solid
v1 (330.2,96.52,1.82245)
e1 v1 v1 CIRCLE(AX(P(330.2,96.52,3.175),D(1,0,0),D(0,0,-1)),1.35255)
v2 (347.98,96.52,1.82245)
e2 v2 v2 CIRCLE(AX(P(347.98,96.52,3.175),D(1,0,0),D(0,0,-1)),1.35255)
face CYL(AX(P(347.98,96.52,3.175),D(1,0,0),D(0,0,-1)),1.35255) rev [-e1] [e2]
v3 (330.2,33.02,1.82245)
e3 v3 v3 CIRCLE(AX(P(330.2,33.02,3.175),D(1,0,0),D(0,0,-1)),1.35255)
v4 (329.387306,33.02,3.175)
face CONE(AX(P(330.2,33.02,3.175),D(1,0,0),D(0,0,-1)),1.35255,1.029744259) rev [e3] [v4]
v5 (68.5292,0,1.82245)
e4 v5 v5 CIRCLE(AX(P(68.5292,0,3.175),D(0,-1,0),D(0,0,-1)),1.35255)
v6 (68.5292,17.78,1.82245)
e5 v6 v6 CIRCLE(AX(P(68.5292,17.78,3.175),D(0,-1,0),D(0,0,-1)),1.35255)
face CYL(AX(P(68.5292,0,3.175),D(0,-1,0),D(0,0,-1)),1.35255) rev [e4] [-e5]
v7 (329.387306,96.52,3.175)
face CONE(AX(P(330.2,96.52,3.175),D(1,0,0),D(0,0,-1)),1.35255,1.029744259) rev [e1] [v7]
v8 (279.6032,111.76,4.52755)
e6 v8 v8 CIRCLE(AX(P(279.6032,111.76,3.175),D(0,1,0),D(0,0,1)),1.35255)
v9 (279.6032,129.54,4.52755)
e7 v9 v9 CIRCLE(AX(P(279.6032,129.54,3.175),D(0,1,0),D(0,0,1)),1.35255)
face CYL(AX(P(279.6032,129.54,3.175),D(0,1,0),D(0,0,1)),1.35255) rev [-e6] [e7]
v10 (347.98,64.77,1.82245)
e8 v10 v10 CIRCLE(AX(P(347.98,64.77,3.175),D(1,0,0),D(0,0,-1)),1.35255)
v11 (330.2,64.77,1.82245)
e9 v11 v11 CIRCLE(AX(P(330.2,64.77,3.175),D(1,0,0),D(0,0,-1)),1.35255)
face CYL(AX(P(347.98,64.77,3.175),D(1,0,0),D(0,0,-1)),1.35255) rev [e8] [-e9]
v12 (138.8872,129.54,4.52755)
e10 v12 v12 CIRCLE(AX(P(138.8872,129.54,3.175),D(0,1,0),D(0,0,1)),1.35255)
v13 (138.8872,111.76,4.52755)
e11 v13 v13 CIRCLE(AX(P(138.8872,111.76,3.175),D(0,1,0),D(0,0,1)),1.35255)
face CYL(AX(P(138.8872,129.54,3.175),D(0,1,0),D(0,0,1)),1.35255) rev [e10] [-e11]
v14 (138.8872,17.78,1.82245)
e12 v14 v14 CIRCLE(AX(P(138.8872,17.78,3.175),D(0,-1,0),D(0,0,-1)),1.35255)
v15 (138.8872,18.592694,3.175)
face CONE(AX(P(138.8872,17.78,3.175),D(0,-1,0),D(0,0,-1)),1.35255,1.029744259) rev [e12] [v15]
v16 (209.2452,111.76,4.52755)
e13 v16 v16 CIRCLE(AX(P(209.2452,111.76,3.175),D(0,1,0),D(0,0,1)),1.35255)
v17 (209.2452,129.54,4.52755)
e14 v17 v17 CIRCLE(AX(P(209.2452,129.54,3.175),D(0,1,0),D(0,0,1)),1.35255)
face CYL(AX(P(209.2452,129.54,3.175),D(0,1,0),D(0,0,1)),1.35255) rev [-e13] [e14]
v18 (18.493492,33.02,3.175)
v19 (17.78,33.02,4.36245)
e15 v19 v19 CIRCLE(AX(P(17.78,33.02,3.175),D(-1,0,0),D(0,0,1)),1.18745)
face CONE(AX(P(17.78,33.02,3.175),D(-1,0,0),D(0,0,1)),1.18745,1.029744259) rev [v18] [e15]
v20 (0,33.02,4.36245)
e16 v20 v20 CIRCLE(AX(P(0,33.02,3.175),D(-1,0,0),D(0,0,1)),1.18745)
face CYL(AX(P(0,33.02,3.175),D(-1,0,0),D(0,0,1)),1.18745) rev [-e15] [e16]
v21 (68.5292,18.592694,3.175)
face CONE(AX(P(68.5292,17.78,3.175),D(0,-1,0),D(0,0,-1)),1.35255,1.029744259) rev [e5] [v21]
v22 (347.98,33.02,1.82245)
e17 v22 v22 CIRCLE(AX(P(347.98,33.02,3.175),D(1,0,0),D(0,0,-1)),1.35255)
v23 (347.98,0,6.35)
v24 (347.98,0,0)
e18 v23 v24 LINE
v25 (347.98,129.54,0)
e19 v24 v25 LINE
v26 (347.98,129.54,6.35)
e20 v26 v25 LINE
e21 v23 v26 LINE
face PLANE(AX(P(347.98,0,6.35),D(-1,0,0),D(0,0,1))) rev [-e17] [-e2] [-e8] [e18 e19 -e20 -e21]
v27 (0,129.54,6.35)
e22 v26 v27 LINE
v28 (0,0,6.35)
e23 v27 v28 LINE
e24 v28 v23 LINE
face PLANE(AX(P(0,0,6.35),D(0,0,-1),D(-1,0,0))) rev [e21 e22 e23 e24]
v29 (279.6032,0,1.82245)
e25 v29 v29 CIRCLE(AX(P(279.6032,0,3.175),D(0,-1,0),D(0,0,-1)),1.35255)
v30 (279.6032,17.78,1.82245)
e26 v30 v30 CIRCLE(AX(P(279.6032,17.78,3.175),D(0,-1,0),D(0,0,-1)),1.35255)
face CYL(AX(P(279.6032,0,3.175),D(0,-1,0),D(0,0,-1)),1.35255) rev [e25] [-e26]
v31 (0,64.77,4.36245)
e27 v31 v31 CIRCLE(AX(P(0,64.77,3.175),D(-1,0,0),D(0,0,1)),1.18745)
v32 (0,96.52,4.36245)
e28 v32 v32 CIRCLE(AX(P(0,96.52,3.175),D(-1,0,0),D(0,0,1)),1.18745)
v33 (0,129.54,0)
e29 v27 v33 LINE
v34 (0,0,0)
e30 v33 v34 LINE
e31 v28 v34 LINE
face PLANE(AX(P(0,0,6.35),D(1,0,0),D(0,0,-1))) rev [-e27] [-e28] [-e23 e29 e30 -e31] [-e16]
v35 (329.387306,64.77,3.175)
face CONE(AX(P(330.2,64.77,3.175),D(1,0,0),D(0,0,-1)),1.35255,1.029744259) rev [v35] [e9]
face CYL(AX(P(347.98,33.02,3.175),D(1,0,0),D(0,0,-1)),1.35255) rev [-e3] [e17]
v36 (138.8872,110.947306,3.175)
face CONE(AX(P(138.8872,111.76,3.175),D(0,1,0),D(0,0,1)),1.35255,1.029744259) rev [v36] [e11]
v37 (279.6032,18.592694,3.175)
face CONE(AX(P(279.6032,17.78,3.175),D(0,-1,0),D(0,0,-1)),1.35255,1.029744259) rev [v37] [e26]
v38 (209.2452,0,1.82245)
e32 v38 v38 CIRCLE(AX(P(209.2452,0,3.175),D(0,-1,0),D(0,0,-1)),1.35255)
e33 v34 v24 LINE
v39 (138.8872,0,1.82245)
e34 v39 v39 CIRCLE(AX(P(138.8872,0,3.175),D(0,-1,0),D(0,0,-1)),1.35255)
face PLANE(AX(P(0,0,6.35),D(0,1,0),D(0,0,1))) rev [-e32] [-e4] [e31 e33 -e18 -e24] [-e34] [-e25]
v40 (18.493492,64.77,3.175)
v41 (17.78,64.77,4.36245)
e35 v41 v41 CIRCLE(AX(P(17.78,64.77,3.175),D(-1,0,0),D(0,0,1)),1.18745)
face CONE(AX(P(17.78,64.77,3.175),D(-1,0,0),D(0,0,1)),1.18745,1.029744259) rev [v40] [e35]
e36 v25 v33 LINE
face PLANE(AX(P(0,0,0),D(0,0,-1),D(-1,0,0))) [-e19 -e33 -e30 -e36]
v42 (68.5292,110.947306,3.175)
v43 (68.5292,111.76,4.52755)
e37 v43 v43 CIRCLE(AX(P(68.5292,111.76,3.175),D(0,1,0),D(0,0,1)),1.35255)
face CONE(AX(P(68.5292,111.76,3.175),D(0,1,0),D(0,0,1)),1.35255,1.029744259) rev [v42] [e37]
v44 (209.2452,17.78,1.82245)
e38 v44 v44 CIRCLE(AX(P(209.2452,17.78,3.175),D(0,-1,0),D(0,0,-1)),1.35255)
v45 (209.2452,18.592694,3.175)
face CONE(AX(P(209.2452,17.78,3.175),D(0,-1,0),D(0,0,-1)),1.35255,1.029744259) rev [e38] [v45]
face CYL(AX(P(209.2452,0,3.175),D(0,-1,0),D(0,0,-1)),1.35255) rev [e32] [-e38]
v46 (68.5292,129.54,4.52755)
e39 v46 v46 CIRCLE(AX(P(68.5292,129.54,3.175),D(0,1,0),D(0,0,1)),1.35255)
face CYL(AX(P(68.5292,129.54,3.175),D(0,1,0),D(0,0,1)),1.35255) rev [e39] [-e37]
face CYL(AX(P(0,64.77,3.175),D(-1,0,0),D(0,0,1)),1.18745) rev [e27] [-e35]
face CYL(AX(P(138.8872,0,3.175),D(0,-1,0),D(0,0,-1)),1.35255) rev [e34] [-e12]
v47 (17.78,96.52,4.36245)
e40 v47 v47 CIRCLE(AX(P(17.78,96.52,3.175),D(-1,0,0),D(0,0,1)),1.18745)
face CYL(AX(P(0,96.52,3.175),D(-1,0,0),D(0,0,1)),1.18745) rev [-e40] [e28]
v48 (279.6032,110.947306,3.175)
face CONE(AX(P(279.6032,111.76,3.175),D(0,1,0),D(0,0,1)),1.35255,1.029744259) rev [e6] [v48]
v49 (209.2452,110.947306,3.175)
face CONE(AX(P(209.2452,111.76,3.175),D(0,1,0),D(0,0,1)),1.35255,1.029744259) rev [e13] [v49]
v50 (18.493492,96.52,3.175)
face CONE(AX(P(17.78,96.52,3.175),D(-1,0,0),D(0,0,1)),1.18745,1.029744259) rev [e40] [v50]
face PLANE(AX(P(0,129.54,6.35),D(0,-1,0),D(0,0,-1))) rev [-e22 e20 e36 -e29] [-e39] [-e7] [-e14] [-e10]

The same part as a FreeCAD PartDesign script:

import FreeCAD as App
import Part
import Sketcher
Q = App.Units.Quantity


def add_polygon(sketch, points):
    """Adds a closed chain of lines whose ends are joined by coincident constraints."""
    first, n = sketch.GeometryCount, len(points)
    for a, b in zip(points, points[1:] + points[:1]):
        sketch.addGeometry(Part.LineSegment(App.Vector(*a, 0), App.Vector(*b, 0)), False)
    for i in range(n):
        sketch.addConstraint(Sketcher.Constraint("Coincident", first + i, 2, first + (i + 1) % n, 1))

doc = App.newDocument("Part")
body = doc.addObject("PartDesign::Body", "Body")

# Sketch on XY plane
sketch1 = doc.addObject("Sketcher::SketchObject", "Sketch")
body.addObject(sketch1)
sketch1.AttachmentSupport = (doc.XY_Plane, [""])
sketch1.MapMode = "FlatFace"
add_polygon(sketch1, [(0, 130), (0, 0), (348, 0), (348, 130)])  # lines 0-3
sketch1.addConstraint([
    Sketcher.Constraint("Vertical", 0),
    Sketcher.Constraint("Horizontal", 1),
    Sketcher.Constraint("Vertical", 2),
    Sketcher.Constraint("Horizontal", 3),
    Sketcher.Constraint("Coincident", 0, 2, -1, 1),
    Sketcher.Constraint("DistanceX", 1, 1, 1, 2, Q("13.7 in")),
    Sketcher.Constraint("DistanceY", 0, 2, 0, 1, Q("5.1 in")),
])
pad1 = doc.addObject("PartDesign::Pad", "Pad")
body.addObject(pad1)
pad1.Profile = sketch1
pad1.Length = Q("0.25 in")

# Sketch on YZ plane
sketch2 = doc.addObject("Sketcher::SketchObject", "Sketch001")
body.addObject(sketch2)
sketch2.AttachmentSupport = (doc.YZ_Plane, [""])
sketch2.MapMode = "FlatFace"
sketch2.addGeometry([
    Part.Circle(App.Vector(95.2, -348.6, 0), App.Vector(0, 0, 1), 1.2),  # 0
    Part.Circle(App.Vector(69.8, -348.6, 0), App.Vector(0, 0, 1), 1.2),  # 1
    Part.Circle(App.Vector(44.5, -348.6, 0), App.Vector(0, 0, 1), 1.2),  # 2
    Part.Circle(App.Vector(96.5, 3.2, 0), App.Vector(0, 0, 1), 1.2),  # 3
    Part.Circle(App.Vector(64.8, 3.2, 0), App.Vector(0, 0, 1), 1.2),  # 4
    Part.Circle(App.Vector(33, 3.2, 0), App.Vector(0, 0, 1), 1.2),  # 5
], False)
sketch2.addConstraint([
    Sketcher.Constraint("Equal", 0, 1),
    Sketcher.Constraint("Equal", 1, 2),
    Sketcher.Constraint("Equal", 2, 3),
    Sketcher.Constraint("Equal", 3, 4),
    Sketcher.Constraint("Equal", 4, 5),
    Sketcher.Constraint("Horizontal", 0, 3, 1, 3),
    Sketcher.Constraint("Horizontal", 1, 3, 2, 3),
    Sketcher.Constraint("Horizontal", 3, 3, 4, 3),
    Sketcher.Constraint("Horizontal", 4, 3, 5, 3),
    Sketcher.Constraint("DistanceX", 1, 3, 0, 3, Q("1 in")),
    Sketcher.Constraint("DistanceX", 2, 3, 1, 3, Q("1 in")),
    Sketcher.Constraint("Diameter", 0, Q("0.0935 in")),
    Sketcher.Constraint("DistanceX", -1, 1, 3, 3, Q("3.8 in")),
    Sketcher.Constraint("DistanceX", -1, 1, 5, 3, Q("1.3 in")),
    Sketcher.Constraint("DistanceX", 4, 3, 1, 3, Q("0.2 in")),
    Sketcher.Constraint("DistanceX", -1, 1, 0, 3, Q("3.75 in")),
    Sketcher.Constraint("DistanceY", 0, 3, 3, 3, Q("13.85 in")),
    Sketcher.Constraint("DistanceY", 0, 3, -1, 1, Q("13.725 in")),
])
doc.recompute()
hole = doc.addObject("PartDesign::Hole", "Hole")
body.addObject(hole)
hole.Profile = sketch2
hole.ThreadType = "None"
hole.Diameter = Q("0.0935 in")
hole.DepthType = "Dimension"
hole.Depth = Q("0.7 in")
hole.DrillPoint = "Angled"
hole.DrillPointAngle = 118
hole.Reversed = True

# Sketch on XZ plane
sketch3 = doc.addObject("Sketcher::SketchObject", "Sketch002")
body.addObject(sketch3)
sketch3.AttachmentSupport = (doc.XZ_Plane, [""])
sketch3.MapMode = "FlatFace"
sketch3.AttachmentOffset = App.Placement(App.Vector(0, 0, -5.1 * 25.4), App.Rotation())
sketch3.addGeometry([
    Part.Circle(App.Vector(279.6, 3.2, 0), App.Vector(0, 0, 1), 1.4),
    Part.Circle(App.Vector(209.2, 3.2, 0), App.Vector(0, 0, 1), 1.4),
    Part.Circle(App.Vector(138.9, 3.2, 0), App.Vector(0, 0, 1), 1.4),
    Part.Circle(App.Vector(68.5, 3.2, 0), App.Vector(0, 0, 1), 1.4),
], False)
sketch3.addConstraint([
    Sketcher.Constraint("Equal", 0, 1),
    Sketcher.Constraint("Equal", 1, 2),
    Sketcher.Constraint("Equal", 2, 3),
    Sketcher.Constraint("Horizontal", 0, 3, 1, 3),
    Sketcher.Constraint("Horizontal", 1, 3, 2, 3),
    Sketcher.Constraint("Horizontal", 2, 3, 3, 3),
    Sketcher.Constraint("Diameter", 0, Q("0.1065 in")),
    Sketcher.Constraint("DistanceX", 1, 3, 0, 3, Q("2.77 in")),
    Sketcher.Constraint("DistanceX", 2, 3, 1, 3, Q("2.77 in")),
    Sketcher.Constraint("DistanceX", 3, 3, 2, 3, Q("2.77 in")),
    Sketcher.Constraint("DistanceX", -1, 1, 0, 3, Q("11.008 in")),
    Sketcher.Constraint("DistanceY", -1, 1, 0, 3, Q("0.125 in")),
])
doc.recompute()
hole2 = doc.addObject("PartDesign::Hole", "Hole001")
body.addObject(hole2)
hole2.Profile = sketch3
hole2.ThreadType = "None"
hole2.Diameter = Q("0.1065 in")
hole2.DepthType = "Dimension"
hole2.Depth = Q("0.7 in")
hole2.DrillPoint = "Angled"
hole2.DrillPointAngle = 118
hole2.Reversed = True

# Sketch on XZ plane
sketch4 = doc.addObject("Sketcher::SketchObject", "Sketch003")
body.addObject(sketch4)
sketch4.AttachmentSupport = (doc.XZ_Plane, [""])
sketch4.MapMode = "FlatFace"
sketch4.addGeometry([
    Part.Circle(App.Vector(68.5, 3.2, 0), App.Vector(0, 0, 1), 1.4),
    Part.Circle(App.Vector(138.9, 3.2, 0), App.Vector(0, 0, 1), 1.4),
    Part.Circle(App.Vector(209.2, 3.2, 0), App.Vector(0, 0, 1), 1.4),
    Part.Circle(App.Vector(279.6, 3.2, 0), App.Vector(0, 0, 1), 1.4),
], False)
sketch4.addConstraint([
    Sketcher.Constraint("Equal", 0, 1),
    Sketcher.Constraint("Equal", 1, 2),
    Sketcher.Constraint("Equal", 2, 3),
    Sketcher.Constraint("Horizontal", 0, 3, 1, 3),
    Sketcher.Constraint("Horizontal", 1, 3, 2, 3),
    Sketcher.Constraint("Horizontal", 2, 3, 3, 3),
    Sketcher.Constraint("Diameter", 0, Q("0.1065 in")),
    Sketcher.Constraint("DistanceX", 0, 3, 1, 3, Q("2.77 in")),
    Sketcher.Constraint("DistanceX", 1, 3, 2, 3, Q("2.77 in")),
    Sketcher.Constraint("DistanceX", 2, 3, 3, 3, Q("2.77 in")),
    Sketcher.Constraint("DistanceX", -1, 1, 0, 3, Q("2.698 in")),
    Sketcher.Constraint("DistanceY", -1, 1, 0, 3, Q("0.125 in")),
])
doc.recompute()
hole3 = doc.addObject("PartDesign::Hole", "Hole002")
body.addObject(hole3)
hole3.Profile = sketch4
hole3.ThreadType = "None"
hole3.Diameter = Q("0.1065 in")
hole3.DepthType = "Dimension"
hole3.Depth = Q("0.7 in")
hole3.DrillPoint = "Angled"
hole3.DrillPointAngle = 118

# Sketch on YZ plane
sketch5 = doc.addObject("Sketcher::SketchObject", "Sketch004")
body.addObject(sketch5)
sketch5.AttachmentSupport = (doc.YZ_Plane, [""])
sketch5.MapMode = "FlatFace"
sketch5.AttachmentOffset = App.Placement(App.Vector(0, 0, 13.7 * 25.4), App.Rotation())
sketch5.addGeometry([
    Part.Circle(App.Vector(64.8, 3.2, 0), App.Vector(0, 0, 1), 1.4),
    Part.Circle(App.Vector(96.5, 3.2, 0), App.Vector(0, 0, 1), 1.4),
    Part.Circle(App.Vector(33, 3.2, 0), App.Vector(0, 0, 1), 1.4),
], False)
sketch5.addConstraint([
    Sketcher.Constraint("Equal", 0, 1),
    Sketcher.Constraint("Equal", 1, 2),
    Sketcher.Constraint("Horizontal", 0, 3, 1, 3),
    Sketcher.Constraint("Horizontal", 1, 3, 2, 3),
    Sketcher.Constraint("Diameter", 0, Q("0.1065 in")),
    Sketcher.Constraint("DistanceX", -1, 1, 1, 3, Q("3.8 in")),
    Sketcher.Constraint("DistanceX", -1, 1, 2, 3, Q("1.3 in")),
    Sketcher.Constraint("DistanceX", -1, 1, 0, 3, Q("2.55 in")),
    Sketcher.Constraint("DistanceY", -1, 1, 0, 3, Q("0.125 in")),
])
doc.recompute()
hole4 = doc.addObject("PartDesign::Hole", "Hole003")
body.addObject(hole4)
hole4.Profile = sketch5
hole4.ThreadType = "None"
hole4.Diameter = Q("0.1065 in")
hole4.DepthType = "Dimension"
hole4.Depth = Q("0.7 in")
hole4.DrillPoint = "Angled"
hole4.DrillPointAngle = 118

doc.recompute()
